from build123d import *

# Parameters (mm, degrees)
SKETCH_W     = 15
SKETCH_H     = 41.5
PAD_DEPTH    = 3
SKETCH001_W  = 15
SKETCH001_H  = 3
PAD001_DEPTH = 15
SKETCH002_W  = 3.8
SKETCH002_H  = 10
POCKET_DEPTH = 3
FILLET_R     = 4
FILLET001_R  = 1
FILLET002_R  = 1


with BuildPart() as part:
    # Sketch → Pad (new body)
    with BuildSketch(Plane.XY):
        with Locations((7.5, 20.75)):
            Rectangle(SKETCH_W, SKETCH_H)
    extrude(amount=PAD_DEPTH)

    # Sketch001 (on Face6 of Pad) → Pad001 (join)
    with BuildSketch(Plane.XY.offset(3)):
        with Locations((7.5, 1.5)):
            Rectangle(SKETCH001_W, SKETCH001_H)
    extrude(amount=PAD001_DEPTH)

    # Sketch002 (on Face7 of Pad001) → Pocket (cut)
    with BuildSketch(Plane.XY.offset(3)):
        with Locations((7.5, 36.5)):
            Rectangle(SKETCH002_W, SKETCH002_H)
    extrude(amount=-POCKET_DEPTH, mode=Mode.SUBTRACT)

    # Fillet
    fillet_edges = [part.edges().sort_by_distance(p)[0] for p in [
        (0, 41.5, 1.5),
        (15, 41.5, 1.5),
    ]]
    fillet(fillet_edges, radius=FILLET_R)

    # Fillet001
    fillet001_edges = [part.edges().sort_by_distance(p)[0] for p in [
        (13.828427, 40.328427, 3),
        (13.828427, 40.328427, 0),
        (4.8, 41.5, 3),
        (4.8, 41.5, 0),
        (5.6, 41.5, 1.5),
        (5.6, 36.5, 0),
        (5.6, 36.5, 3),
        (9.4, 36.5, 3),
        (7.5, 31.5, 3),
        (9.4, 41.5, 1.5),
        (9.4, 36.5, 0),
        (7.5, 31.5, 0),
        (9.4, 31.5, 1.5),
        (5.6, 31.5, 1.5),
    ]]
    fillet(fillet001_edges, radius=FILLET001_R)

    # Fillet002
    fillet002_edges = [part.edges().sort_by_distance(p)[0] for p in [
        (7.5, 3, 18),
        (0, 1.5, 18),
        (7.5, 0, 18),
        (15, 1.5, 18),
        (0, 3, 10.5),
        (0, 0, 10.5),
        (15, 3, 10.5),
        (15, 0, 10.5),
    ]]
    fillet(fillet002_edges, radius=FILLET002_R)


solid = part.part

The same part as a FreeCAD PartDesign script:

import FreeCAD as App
import Part
import Sketcher

V = App.Vector


def edges_at(feature, points):
    """Names of the edges that pass closest to the given points."""
    edges = feature.Shape.Edges
    near = lambda p: min(range(len(edges)), key=lambda i: edges[i].distToShape(Part.Vertex(*p))[0])
    return sorted({f"Edge{near(p) + 1}" for p in points})


def add_polygon(sketch, points):
    """Adds a closed chain of lines whose ends are joined by coincident constraints."""
    first, n = sketch.GeometryCount, len(points)
    for a, b in zip(points, points[1:] + points[:1]):
        sketch.addGeometry(Part.LineSegment(App.Vector(*a, 0), App.Vector(*b, 0)), False)
    for i in range(n):
        sketch.addConstraint(Sketcher.Constraint("Coincident", first + i, 2, first + (i + 1) % n, 1))

doc = App.newDocument("Part")
body = doc.addObject("PartDesign::Body", "Body")

sketch1 = body.newObject("Sketcher::SketchObject", "Sketch")
sketch1.AttachmentSupport = (doc.getObject("XY_Plane"), [""])
sketch1.MapMode = "FlatFace"
add_polygon(sketch1, [(0, 42), (0, 0), (15, 0), (15, 42)])
sketch1.addConstraint([
    Sketcher.Constraint("Vertical", 0),
    Sketcher.Constraint("Horizontal", 1),
    Sketcher.Constraint("Vertical", 2),
    Sketcher.Constraint("Horizontal", 3),
    Sketcher.Constraint("Coincident", 0, 2, -1, 1),
    Sketcher.Constraint("DistanceX", 1, 1, 1, 2, 15.0),
    Sketcher.Constraint("DistanceY", 0, 2, 0, 1, 41.5),
])
pad1 = body.newObject("PartDesign::Pad", "Pad")
pad1.Profile = sketch1
pad1.Length = 3

sketch2 = body.newObject("Sketcher::SketchObject", "Sketch001")
sketch2.AttachmentSupport = (doc.getObject("XY_Plane"), [""])
sketch2.MapMode = "FlatFace"
sketch2.AttachmentOffset = App.Placement(V(0, 0, 3), App.Rotation())
add_polygon(sketch2, [(0, 3), (0, 0), (15, 0), (15, 3)])
sketch2.addConstraint([
    Sketcher.Constraint("Vertical", 0),
    Sketcher.Constraint("Horizontal", 1),
    Sketcher.Constraint("Vertical", 2),
    Sketcher.Constraint("Horizontal", 3),
    Sketcher.Constraint("Coincident", 0, 2, -1, 1),
    Sketcher.Constraint("DistanceX", 1, 1, 1, 2, 15.0),
    Sketcher.Constraint("DistanceY", 0, 2, 0, 1, 3.0),
])
pad2 = body.newObject("PartDesign::Pad", "Pad001")
pad2.Profile = sketch2
pad2.Length = 15

sketch3 = body.newObject("Sketcher::SketchObject", "Sketch002")
sketch3.AttachmentSupport = (doc.getObject("XY_Plane"), [""])
sketch3.MapMode = "FlatFace"
sketch3.AttachmentOffset = App.Placement(V(0, 0, 3), App.Rotation())
add_polygon(sketch3, [(5.6, 41.5), (5.6, 31.5), (9.4, 31.5), (9.4, 41.5)])
sketch3.addConstraint([
    Sketcher.Constraint("Vertical", 0),
    Sketcher.Constraint("Horizontal", 1),
    Sketcher.Constraint("Vertical", 2),
    Sketcher.Constraint("Horizontal", 3),
    Sketcher.Constraint("DistanceY", 0, 2, 0, 1, 10.0),
    Sketcher.Constraint("DistanceX", 1, 1, 1, 2, 3.8),
    Sketcher.Constraint("DistanceX", -1, 1, 0, 2, 5.6),
    Sketcher.Constraint("DistanceY", -1, 1, 0, 2, 31.5),
])
pocket1 = body.newObject("PartDesign::Pocket", "Pocket")
pocket1.Profile = sketch3
pocket1.Length = 3
doc.recompute()

fillet = body.newObject("PartDesign::Fillet", "Fillet")
fillet.Base = (pocket1, edges_at(pocket1, [(0, 41.5, 1.5), (15, 41.5, 1.5)]))
fillet.Radius = 4
doc.recompute()

fillet2 = body.newObject("PartDesign::Fillet", "Fillet001")
fillet2.Base = (fillet, edges_at(fillet, [
    (13.828, 40.328, 3),
    (13.828, 40.328, 0),
    (4.8, 41.5, 3),
    (4.8, 41.5, 0),
    (5.6, 41.5, 1.5),
    (5.6, 36.5, 0),
    (5.6, 36.5, 3),
    (9.4, 36.5, 3),
    (7.5, 31.5, 3),
    (9.4, 41.5, 1.5),
    (9.4, 36.5, 0),
    (7.5, 31.5, 0),
    (9.4, 31.5, 1.5),
    (5.6, 31.5, 1.5),
]))
fillet2.Radius = 1
doc.recompute()

fillet3 = body.newObject("PartDesign::Fillet", "Fillet002")
fillet3.Base = (fillet2, edges_at(fillet2, [
    (7.5, 3, 18),
    (0, 1.5, 18),
    (7.5, 0, 18),
    (15, 1.5, 18),
    (0, 3, 10),
    (0, 0, 9.5),
    (15, 3, 10),
    (15, 0, 9.5),
]))
fillet3.Radius = 1

doc.recompute()
